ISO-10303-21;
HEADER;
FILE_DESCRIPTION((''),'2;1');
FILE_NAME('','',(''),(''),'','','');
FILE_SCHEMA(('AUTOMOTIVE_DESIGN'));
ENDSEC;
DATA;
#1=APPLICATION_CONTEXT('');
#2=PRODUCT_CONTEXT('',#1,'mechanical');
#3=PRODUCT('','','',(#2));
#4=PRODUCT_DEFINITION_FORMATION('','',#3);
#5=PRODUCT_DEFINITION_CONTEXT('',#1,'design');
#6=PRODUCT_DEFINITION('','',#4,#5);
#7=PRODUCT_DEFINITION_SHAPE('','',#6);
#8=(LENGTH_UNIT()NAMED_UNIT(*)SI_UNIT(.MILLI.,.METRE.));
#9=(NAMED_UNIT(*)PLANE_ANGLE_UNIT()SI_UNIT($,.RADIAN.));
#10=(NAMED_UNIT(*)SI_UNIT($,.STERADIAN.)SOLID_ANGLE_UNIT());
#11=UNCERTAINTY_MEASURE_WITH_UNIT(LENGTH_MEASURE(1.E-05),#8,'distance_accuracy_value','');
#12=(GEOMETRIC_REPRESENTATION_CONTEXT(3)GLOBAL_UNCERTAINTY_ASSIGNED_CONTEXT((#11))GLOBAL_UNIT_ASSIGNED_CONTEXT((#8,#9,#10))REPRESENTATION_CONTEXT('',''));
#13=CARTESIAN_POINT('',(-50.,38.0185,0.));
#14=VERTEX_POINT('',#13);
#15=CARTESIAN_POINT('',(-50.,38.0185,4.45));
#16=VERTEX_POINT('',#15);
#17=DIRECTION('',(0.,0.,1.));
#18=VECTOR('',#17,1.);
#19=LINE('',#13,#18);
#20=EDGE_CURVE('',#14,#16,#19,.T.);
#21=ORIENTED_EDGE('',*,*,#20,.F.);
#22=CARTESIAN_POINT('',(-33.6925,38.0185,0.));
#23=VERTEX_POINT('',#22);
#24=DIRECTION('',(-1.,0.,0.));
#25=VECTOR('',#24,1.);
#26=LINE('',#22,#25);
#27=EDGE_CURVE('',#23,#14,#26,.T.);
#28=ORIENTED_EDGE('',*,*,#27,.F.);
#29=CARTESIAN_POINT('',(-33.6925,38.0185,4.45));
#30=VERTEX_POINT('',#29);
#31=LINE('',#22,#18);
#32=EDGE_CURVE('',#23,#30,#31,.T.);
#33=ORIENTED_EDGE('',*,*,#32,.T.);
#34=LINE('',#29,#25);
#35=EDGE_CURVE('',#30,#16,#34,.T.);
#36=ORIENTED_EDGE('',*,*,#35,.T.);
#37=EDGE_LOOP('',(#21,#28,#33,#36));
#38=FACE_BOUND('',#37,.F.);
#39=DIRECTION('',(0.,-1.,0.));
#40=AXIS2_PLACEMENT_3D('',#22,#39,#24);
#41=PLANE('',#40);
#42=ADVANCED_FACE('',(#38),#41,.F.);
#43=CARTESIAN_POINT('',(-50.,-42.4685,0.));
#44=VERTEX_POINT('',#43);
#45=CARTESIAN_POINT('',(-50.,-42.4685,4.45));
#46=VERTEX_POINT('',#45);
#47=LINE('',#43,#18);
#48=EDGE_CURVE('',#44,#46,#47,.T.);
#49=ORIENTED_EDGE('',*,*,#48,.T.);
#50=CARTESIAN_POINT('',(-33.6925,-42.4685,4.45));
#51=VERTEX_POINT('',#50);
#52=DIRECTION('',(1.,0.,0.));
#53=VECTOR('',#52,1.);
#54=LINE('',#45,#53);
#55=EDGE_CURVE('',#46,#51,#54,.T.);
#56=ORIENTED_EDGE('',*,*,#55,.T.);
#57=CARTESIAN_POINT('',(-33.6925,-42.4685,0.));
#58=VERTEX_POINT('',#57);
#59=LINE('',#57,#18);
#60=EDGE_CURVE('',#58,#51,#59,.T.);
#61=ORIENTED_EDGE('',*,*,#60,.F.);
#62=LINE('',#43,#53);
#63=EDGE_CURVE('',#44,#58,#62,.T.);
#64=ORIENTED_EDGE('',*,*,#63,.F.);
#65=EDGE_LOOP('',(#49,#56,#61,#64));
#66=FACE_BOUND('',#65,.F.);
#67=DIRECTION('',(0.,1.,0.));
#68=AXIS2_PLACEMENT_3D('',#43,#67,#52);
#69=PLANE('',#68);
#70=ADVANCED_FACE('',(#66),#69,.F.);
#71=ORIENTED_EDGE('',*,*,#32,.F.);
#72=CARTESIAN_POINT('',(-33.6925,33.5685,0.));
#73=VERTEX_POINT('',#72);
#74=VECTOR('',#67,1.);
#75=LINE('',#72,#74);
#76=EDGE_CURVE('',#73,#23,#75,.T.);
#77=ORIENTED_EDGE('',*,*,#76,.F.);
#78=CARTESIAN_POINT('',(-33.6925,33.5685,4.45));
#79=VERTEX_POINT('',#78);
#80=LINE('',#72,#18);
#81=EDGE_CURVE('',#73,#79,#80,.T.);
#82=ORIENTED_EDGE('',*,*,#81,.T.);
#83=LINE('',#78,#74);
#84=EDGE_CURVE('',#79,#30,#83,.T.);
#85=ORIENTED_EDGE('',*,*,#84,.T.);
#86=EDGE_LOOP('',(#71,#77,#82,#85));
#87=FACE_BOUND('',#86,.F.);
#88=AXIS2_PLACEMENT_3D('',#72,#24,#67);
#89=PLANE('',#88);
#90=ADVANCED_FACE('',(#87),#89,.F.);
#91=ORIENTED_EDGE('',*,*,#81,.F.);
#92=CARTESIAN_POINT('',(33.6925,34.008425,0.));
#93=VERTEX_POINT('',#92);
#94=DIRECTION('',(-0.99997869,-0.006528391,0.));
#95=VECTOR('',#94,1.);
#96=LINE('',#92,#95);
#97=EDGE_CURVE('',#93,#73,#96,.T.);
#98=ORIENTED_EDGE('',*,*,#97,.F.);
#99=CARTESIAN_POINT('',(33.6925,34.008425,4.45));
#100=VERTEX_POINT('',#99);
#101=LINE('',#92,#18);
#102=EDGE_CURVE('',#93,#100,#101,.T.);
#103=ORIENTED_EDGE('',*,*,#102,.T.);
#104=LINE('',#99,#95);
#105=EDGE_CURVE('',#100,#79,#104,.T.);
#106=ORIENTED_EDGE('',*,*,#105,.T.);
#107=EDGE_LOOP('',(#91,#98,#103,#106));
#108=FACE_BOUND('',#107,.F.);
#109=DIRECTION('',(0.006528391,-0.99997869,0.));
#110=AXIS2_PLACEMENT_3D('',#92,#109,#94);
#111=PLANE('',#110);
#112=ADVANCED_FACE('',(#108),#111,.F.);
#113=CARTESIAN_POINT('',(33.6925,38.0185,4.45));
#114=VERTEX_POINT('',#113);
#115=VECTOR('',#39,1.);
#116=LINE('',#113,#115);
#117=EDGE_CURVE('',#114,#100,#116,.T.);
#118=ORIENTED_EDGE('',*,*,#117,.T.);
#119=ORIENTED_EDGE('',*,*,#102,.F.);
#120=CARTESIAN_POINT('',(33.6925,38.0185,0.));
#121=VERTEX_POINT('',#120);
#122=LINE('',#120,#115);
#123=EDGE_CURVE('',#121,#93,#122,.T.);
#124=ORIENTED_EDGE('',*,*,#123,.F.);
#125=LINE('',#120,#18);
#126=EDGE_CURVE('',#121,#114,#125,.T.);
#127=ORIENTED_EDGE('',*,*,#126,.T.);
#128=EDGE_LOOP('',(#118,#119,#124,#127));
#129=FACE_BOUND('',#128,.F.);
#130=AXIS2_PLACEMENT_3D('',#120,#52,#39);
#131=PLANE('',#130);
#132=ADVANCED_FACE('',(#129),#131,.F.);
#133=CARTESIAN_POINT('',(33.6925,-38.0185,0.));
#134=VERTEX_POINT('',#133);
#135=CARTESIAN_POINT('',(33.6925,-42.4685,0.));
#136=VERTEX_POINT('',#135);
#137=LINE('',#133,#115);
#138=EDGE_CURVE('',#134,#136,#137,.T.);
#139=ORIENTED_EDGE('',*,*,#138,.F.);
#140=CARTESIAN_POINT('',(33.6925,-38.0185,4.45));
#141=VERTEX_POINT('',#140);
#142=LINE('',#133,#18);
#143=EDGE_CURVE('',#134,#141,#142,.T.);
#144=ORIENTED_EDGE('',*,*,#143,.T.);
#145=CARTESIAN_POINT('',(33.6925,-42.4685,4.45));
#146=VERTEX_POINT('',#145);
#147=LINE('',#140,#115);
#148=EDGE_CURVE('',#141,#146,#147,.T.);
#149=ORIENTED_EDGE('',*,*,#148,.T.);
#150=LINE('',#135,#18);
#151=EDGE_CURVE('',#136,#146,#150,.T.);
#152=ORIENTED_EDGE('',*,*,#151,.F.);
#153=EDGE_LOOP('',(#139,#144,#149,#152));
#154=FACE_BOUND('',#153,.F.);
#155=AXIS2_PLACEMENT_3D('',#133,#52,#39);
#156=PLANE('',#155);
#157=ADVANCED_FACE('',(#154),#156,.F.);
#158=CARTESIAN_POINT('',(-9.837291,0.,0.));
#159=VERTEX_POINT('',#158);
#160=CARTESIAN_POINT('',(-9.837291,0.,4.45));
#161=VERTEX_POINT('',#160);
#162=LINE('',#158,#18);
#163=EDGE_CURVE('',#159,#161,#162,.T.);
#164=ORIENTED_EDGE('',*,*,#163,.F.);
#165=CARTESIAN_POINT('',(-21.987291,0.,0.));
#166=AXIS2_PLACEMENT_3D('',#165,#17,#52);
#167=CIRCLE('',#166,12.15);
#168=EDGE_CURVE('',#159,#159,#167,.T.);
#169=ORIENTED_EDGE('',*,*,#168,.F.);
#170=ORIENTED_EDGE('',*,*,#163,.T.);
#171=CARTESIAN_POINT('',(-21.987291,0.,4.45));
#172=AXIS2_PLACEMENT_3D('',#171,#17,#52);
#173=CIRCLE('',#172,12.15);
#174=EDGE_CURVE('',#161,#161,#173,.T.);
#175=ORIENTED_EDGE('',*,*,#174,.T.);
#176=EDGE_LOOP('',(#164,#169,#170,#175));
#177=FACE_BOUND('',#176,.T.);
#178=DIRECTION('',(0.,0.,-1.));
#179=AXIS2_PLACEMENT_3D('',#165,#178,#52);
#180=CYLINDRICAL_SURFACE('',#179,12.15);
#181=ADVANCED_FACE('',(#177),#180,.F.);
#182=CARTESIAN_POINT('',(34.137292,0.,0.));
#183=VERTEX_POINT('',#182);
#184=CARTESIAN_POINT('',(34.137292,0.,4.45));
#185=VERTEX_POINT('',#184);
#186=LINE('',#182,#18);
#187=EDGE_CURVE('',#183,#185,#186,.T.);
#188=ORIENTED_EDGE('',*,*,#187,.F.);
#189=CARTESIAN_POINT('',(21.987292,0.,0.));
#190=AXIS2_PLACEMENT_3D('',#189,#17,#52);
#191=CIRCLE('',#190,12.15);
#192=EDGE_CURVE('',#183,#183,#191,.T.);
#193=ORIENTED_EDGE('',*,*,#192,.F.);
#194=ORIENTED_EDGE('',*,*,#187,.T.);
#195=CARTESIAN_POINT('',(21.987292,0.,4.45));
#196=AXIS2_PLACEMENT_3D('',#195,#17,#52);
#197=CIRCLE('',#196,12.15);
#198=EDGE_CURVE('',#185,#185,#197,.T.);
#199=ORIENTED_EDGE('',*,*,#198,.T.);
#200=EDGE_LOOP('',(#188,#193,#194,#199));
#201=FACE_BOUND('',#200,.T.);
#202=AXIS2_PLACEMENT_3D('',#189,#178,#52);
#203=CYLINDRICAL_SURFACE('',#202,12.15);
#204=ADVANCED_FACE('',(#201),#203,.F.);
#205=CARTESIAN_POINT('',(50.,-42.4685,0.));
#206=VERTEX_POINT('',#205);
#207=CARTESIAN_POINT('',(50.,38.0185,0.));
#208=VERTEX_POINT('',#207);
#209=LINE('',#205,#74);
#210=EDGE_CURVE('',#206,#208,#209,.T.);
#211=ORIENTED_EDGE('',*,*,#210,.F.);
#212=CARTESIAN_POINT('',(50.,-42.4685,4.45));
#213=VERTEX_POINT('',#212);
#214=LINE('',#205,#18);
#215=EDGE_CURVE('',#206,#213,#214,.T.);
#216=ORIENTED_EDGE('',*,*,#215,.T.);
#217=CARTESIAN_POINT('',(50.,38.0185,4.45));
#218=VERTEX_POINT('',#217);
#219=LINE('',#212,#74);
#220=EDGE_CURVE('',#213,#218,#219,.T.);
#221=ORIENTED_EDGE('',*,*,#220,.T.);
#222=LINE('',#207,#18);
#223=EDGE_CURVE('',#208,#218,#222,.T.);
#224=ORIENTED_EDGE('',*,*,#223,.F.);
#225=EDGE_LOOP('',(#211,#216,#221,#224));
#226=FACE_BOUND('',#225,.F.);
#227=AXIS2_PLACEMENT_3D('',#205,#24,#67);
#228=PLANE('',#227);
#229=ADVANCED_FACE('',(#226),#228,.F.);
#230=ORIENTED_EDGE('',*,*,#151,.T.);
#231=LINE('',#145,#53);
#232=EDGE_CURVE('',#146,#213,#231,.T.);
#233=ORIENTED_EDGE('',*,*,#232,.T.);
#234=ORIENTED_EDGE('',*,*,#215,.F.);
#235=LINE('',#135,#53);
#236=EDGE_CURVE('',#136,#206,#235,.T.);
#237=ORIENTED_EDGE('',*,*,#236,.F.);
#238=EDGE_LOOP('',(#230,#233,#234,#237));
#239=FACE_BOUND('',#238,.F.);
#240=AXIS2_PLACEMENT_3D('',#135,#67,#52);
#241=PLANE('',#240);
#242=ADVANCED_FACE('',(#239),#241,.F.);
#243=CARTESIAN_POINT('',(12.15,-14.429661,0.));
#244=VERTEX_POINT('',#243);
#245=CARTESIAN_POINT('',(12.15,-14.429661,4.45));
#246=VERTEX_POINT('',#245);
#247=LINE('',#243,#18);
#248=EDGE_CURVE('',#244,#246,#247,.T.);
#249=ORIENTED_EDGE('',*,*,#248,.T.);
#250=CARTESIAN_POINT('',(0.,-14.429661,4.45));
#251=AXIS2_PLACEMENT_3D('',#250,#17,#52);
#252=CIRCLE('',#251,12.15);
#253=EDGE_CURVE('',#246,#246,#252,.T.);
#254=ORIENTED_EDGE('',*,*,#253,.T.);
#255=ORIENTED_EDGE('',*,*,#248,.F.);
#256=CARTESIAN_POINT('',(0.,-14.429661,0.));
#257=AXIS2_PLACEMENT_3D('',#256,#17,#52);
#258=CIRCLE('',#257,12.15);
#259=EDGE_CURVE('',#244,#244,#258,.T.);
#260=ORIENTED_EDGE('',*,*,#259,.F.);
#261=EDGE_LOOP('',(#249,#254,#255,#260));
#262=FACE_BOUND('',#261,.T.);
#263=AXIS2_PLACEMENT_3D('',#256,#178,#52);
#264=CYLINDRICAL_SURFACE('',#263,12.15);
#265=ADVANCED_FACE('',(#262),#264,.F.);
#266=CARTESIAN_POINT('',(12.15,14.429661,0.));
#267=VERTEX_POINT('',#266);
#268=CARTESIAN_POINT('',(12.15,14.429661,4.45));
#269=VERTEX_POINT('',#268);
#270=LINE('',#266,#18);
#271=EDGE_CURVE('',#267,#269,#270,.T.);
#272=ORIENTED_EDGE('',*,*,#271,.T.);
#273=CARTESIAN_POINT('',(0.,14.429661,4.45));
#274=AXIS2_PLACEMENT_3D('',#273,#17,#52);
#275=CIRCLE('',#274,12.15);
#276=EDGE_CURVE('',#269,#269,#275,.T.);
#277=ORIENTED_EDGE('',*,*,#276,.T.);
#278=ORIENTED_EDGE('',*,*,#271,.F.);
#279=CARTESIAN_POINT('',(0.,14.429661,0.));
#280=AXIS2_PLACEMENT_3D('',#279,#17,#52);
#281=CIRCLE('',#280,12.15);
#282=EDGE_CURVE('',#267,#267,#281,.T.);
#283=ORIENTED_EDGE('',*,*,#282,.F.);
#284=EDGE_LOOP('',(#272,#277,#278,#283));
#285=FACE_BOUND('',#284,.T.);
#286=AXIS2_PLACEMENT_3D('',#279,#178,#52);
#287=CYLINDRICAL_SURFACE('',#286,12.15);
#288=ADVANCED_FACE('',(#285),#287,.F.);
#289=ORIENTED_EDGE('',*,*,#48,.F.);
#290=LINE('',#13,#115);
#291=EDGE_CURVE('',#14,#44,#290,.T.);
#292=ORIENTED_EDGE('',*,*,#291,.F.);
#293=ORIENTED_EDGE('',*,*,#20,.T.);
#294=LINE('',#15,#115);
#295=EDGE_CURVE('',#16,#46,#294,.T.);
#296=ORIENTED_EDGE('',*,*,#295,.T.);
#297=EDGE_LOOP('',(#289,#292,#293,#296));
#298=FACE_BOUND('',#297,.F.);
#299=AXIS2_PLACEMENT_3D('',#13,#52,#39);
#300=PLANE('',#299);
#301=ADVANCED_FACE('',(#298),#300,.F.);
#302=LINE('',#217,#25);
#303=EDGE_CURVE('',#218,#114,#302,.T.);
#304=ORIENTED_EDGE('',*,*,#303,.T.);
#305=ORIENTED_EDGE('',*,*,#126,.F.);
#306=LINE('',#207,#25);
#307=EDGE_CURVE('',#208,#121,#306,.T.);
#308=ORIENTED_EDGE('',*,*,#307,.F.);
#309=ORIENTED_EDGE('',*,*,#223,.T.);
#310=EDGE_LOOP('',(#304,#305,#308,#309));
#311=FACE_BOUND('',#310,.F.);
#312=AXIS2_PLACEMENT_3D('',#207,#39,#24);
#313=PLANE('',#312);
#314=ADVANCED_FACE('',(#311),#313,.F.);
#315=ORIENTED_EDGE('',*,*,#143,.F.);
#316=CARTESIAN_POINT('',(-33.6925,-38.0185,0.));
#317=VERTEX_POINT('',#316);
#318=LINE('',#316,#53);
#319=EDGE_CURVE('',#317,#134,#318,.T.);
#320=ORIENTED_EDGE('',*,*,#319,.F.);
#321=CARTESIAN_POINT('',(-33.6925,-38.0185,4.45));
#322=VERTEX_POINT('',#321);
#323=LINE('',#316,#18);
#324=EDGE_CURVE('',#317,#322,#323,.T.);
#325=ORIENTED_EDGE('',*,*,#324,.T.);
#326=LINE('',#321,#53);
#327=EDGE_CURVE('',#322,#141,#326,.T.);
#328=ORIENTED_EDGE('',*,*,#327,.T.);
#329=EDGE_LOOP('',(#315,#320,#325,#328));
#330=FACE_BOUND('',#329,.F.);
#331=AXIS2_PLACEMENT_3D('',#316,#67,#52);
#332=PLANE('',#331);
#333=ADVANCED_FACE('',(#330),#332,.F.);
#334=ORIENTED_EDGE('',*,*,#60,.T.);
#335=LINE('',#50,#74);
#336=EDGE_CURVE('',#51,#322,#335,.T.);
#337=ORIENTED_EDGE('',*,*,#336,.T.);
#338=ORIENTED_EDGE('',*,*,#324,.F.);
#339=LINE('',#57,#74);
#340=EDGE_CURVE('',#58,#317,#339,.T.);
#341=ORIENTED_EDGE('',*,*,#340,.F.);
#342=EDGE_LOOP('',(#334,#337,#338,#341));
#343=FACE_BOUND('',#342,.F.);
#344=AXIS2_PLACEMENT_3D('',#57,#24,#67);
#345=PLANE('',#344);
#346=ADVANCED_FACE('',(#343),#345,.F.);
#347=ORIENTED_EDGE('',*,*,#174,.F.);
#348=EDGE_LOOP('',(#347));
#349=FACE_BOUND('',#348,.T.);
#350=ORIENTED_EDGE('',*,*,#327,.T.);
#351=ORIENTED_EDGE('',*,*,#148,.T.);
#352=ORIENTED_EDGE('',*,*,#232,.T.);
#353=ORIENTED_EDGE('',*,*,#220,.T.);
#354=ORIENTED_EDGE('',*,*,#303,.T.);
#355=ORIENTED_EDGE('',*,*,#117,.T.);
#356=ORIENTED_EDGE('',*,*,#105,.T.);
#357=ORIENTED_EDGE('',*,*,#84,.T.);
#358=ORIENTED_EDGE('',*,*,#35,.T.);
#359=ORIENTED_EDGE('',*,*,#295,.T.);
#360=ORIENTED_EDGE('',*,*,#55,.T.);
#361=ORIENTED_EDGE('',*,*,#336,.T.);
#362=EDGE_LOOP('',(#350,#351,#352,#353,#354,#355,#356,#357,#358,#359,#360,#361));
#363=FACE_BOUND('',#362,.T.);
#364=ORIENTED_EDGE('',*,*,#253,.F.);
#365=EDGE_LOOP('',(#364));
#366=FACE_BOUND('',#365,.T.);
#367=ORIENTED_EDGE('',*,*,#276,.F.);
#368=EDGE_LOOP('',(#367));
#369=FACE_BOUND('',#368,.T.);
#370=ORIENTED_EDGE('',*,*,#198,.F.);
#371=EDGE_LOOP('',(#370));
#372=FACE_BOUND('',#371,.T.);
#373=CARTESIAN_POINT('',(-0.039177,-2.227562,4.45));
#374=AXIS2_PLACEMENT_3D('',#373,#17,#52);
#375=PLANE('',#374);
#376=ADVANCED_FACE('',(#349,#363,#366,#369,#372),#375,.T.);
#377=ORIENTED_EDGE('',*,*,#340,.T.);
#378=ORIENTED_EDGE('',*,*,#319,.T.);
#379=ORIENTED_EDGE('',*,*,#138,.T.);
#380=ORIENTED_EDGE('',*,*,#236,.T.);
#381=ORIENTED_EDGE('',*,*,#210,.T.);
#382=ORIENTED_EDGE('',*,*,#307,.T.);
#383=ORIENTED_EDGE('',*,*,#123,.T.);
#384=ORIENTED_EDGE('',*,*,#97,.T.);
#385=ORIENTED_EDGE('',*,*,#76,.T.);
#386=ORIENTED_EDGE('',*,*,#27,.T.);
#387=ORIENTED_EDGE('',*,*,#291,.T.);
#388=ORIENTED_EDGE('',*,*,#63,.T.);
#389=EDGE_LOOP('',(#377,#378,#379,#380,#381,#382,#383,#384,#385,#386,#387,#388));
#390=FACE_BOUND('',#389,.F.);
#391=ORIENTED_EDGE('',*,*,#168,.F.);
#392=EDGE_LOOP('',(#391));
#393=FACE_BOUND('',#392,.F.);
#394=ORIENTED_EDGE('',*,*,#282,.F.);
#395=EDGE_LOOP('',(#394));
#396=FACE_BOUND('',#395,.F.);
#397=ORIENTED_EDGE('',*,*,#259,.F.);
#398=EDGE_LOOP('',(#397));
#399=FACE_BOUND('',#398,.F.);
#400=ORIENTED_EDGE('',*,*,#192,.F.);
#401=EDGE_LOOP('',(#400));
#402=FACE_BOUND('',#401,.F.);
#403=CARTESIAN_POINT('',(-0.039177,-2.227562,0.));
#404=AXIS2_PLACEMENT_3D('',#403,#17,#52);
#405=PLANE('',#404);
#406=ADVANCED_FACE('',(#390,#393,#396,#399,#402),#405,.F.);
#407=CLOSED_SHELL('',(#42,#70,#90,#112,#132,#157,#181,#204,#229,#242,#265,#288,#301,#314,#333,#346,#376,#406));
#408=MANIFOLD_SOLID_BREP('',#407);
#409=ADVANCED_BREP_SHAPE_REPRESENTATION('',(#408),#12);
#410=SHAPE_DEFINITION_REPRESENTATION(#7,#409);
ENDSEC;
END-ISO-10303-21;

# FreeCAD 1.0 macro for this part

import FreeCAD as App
import Part
import Sketcher


def add_polygon(sketch, points):
    """Adds a closed chain of lines whose ends are joined by coincident constraints."""
    first, n = sketch.GeometryCount, len(points)
    for a, b in zip(points, points[1:] + points[:1]):
        sketch.addGeometry(Part.LineSegment(App.Vector(*a, 0), App.Vector(*b, 0)), False)
    for i in range(n):
        sketch.addConstraint(Sketcher.Constraint("Coincident", first + i, 2, first + (i + 1) % n, 1))

doc = App.newDocument("Part")
body = doc.addObject("PartDesign::Body", "Body")

sketch1 = doc.addObject("Sketcher::SketchObject", "Sketch")
body.addObject(sketch1)
sketch1.AttachmentSupport = (doc.XY_Plane, [""])
sketch1.MapMode = "FlatFace"
add_polygon(sketch1, [(50, 38), (33.7, 38), (33.7, 34), (-33.7, 33.6), (-33.7, 38), (-50, 38), (-50, -42.5), (-33.7, -42.5), (-33.7, -38), (33.7, -38), (33.7, -42.5), (50, -42.5)])
sketch1.addGeometry(Part.Circle(App.Vector(0, -14.4, 0), App.Vector(0, 0, 1), 12.2), False)
sketch1.addGeometry(Part.Circle(App.Vector(-22, 0, 0), App.Vector(0, 0, 1), 12.2), False)
sketch1.addGeometry(Part.Circle(App.Vector(0, 14.4, 0), App.Vector(0, 0, 1), 12.2), False)
sketch1.addGeometry(Part.Circle(App.Vector(22, 0, 0), App.Vector(0, 0, 1), 12.2), False)
sketch1.addConstraint([
    Sketcher.Constraint("Horizontal", 0),
    Sketcher.Constraint("Vertical", 1),
    Sketcher.Constraint("Vertical", 3),
    Sketcher.Constraint("Horizontal", 4),
    Sketcher.Constraint("Vertical", 5),
    Sketcher.Constraint("Horizontal", 6),
    Sketcher.Constraint("Vertical", 7),
    Sketcher.Constraint("Horizontal", 8),
    Sketcher.Constraint("Vertical", 9),
    Sketcher.Constraint("Horizontal", 10),
    Sketcher.Constraint("Vertical", 11),
    Sketcher.Constraint("Equal", 12, 13),
    Sketcher.Constraint("Equal", 13, 14),
    Sketcher.Constraint("Equal", 14, 15),
    Sketcher.Constraint("Symmetric", 12, 3, 14, 3, -1, 1),
    Sketcher.Constraint("Symmetric", 13, 3, 15, 3, -1, 1),
    Sketcher.Constraint("Symmetric", 0, 2, 7, 2, -1, 1),
    Sketcher.Constraint("Symmetric", 3, 2, 8, 2, -1, 1),
    Sketcher.Constraint("Symmetric", 6, 2, 9, 2, -2),
    Sketcher.Constraint("PointOnObject", 12, 3, -2),
    Sketcher.Constraint("PointOnObject", 13, 3, -1),
    Sketcher.Constraint("Equal", 0, 4),
    Sketcher.Constraint("Equal", 3, 7),
    Sketcher.Constraint("Diameter", 12, 24.3),
    Sketcher.Constraint("DistanceX", 4, 2, -1, 1, 50.0),
    Sketcher.Constraint("DistanceY", 3, 1, 3, 2, 4.45),
    Sketcher.Constraint("DistanceX", 8, 1, 8, 2, 67.385),
    Sketcher.Constraint("DistanceY", 5, 2, 5, 1, 80.487),
    Sketcher.Constraint("DistanceY", 1, 2, 1, 1, 4.010075),
    Sketcher.Constraint("DistanceY", 12, 3, -1, 1, 14.429661),
    Sketcher.Constraint("DistanceX", 13, 3, -1, 1, 21.987291),
])
pad1 = doc.addObject("PartDesign::Pad", "Pad")
body.addObject(pad1)
pad1.Profile = sketch1
pad1.Length = 4.45

doc.recompute()
